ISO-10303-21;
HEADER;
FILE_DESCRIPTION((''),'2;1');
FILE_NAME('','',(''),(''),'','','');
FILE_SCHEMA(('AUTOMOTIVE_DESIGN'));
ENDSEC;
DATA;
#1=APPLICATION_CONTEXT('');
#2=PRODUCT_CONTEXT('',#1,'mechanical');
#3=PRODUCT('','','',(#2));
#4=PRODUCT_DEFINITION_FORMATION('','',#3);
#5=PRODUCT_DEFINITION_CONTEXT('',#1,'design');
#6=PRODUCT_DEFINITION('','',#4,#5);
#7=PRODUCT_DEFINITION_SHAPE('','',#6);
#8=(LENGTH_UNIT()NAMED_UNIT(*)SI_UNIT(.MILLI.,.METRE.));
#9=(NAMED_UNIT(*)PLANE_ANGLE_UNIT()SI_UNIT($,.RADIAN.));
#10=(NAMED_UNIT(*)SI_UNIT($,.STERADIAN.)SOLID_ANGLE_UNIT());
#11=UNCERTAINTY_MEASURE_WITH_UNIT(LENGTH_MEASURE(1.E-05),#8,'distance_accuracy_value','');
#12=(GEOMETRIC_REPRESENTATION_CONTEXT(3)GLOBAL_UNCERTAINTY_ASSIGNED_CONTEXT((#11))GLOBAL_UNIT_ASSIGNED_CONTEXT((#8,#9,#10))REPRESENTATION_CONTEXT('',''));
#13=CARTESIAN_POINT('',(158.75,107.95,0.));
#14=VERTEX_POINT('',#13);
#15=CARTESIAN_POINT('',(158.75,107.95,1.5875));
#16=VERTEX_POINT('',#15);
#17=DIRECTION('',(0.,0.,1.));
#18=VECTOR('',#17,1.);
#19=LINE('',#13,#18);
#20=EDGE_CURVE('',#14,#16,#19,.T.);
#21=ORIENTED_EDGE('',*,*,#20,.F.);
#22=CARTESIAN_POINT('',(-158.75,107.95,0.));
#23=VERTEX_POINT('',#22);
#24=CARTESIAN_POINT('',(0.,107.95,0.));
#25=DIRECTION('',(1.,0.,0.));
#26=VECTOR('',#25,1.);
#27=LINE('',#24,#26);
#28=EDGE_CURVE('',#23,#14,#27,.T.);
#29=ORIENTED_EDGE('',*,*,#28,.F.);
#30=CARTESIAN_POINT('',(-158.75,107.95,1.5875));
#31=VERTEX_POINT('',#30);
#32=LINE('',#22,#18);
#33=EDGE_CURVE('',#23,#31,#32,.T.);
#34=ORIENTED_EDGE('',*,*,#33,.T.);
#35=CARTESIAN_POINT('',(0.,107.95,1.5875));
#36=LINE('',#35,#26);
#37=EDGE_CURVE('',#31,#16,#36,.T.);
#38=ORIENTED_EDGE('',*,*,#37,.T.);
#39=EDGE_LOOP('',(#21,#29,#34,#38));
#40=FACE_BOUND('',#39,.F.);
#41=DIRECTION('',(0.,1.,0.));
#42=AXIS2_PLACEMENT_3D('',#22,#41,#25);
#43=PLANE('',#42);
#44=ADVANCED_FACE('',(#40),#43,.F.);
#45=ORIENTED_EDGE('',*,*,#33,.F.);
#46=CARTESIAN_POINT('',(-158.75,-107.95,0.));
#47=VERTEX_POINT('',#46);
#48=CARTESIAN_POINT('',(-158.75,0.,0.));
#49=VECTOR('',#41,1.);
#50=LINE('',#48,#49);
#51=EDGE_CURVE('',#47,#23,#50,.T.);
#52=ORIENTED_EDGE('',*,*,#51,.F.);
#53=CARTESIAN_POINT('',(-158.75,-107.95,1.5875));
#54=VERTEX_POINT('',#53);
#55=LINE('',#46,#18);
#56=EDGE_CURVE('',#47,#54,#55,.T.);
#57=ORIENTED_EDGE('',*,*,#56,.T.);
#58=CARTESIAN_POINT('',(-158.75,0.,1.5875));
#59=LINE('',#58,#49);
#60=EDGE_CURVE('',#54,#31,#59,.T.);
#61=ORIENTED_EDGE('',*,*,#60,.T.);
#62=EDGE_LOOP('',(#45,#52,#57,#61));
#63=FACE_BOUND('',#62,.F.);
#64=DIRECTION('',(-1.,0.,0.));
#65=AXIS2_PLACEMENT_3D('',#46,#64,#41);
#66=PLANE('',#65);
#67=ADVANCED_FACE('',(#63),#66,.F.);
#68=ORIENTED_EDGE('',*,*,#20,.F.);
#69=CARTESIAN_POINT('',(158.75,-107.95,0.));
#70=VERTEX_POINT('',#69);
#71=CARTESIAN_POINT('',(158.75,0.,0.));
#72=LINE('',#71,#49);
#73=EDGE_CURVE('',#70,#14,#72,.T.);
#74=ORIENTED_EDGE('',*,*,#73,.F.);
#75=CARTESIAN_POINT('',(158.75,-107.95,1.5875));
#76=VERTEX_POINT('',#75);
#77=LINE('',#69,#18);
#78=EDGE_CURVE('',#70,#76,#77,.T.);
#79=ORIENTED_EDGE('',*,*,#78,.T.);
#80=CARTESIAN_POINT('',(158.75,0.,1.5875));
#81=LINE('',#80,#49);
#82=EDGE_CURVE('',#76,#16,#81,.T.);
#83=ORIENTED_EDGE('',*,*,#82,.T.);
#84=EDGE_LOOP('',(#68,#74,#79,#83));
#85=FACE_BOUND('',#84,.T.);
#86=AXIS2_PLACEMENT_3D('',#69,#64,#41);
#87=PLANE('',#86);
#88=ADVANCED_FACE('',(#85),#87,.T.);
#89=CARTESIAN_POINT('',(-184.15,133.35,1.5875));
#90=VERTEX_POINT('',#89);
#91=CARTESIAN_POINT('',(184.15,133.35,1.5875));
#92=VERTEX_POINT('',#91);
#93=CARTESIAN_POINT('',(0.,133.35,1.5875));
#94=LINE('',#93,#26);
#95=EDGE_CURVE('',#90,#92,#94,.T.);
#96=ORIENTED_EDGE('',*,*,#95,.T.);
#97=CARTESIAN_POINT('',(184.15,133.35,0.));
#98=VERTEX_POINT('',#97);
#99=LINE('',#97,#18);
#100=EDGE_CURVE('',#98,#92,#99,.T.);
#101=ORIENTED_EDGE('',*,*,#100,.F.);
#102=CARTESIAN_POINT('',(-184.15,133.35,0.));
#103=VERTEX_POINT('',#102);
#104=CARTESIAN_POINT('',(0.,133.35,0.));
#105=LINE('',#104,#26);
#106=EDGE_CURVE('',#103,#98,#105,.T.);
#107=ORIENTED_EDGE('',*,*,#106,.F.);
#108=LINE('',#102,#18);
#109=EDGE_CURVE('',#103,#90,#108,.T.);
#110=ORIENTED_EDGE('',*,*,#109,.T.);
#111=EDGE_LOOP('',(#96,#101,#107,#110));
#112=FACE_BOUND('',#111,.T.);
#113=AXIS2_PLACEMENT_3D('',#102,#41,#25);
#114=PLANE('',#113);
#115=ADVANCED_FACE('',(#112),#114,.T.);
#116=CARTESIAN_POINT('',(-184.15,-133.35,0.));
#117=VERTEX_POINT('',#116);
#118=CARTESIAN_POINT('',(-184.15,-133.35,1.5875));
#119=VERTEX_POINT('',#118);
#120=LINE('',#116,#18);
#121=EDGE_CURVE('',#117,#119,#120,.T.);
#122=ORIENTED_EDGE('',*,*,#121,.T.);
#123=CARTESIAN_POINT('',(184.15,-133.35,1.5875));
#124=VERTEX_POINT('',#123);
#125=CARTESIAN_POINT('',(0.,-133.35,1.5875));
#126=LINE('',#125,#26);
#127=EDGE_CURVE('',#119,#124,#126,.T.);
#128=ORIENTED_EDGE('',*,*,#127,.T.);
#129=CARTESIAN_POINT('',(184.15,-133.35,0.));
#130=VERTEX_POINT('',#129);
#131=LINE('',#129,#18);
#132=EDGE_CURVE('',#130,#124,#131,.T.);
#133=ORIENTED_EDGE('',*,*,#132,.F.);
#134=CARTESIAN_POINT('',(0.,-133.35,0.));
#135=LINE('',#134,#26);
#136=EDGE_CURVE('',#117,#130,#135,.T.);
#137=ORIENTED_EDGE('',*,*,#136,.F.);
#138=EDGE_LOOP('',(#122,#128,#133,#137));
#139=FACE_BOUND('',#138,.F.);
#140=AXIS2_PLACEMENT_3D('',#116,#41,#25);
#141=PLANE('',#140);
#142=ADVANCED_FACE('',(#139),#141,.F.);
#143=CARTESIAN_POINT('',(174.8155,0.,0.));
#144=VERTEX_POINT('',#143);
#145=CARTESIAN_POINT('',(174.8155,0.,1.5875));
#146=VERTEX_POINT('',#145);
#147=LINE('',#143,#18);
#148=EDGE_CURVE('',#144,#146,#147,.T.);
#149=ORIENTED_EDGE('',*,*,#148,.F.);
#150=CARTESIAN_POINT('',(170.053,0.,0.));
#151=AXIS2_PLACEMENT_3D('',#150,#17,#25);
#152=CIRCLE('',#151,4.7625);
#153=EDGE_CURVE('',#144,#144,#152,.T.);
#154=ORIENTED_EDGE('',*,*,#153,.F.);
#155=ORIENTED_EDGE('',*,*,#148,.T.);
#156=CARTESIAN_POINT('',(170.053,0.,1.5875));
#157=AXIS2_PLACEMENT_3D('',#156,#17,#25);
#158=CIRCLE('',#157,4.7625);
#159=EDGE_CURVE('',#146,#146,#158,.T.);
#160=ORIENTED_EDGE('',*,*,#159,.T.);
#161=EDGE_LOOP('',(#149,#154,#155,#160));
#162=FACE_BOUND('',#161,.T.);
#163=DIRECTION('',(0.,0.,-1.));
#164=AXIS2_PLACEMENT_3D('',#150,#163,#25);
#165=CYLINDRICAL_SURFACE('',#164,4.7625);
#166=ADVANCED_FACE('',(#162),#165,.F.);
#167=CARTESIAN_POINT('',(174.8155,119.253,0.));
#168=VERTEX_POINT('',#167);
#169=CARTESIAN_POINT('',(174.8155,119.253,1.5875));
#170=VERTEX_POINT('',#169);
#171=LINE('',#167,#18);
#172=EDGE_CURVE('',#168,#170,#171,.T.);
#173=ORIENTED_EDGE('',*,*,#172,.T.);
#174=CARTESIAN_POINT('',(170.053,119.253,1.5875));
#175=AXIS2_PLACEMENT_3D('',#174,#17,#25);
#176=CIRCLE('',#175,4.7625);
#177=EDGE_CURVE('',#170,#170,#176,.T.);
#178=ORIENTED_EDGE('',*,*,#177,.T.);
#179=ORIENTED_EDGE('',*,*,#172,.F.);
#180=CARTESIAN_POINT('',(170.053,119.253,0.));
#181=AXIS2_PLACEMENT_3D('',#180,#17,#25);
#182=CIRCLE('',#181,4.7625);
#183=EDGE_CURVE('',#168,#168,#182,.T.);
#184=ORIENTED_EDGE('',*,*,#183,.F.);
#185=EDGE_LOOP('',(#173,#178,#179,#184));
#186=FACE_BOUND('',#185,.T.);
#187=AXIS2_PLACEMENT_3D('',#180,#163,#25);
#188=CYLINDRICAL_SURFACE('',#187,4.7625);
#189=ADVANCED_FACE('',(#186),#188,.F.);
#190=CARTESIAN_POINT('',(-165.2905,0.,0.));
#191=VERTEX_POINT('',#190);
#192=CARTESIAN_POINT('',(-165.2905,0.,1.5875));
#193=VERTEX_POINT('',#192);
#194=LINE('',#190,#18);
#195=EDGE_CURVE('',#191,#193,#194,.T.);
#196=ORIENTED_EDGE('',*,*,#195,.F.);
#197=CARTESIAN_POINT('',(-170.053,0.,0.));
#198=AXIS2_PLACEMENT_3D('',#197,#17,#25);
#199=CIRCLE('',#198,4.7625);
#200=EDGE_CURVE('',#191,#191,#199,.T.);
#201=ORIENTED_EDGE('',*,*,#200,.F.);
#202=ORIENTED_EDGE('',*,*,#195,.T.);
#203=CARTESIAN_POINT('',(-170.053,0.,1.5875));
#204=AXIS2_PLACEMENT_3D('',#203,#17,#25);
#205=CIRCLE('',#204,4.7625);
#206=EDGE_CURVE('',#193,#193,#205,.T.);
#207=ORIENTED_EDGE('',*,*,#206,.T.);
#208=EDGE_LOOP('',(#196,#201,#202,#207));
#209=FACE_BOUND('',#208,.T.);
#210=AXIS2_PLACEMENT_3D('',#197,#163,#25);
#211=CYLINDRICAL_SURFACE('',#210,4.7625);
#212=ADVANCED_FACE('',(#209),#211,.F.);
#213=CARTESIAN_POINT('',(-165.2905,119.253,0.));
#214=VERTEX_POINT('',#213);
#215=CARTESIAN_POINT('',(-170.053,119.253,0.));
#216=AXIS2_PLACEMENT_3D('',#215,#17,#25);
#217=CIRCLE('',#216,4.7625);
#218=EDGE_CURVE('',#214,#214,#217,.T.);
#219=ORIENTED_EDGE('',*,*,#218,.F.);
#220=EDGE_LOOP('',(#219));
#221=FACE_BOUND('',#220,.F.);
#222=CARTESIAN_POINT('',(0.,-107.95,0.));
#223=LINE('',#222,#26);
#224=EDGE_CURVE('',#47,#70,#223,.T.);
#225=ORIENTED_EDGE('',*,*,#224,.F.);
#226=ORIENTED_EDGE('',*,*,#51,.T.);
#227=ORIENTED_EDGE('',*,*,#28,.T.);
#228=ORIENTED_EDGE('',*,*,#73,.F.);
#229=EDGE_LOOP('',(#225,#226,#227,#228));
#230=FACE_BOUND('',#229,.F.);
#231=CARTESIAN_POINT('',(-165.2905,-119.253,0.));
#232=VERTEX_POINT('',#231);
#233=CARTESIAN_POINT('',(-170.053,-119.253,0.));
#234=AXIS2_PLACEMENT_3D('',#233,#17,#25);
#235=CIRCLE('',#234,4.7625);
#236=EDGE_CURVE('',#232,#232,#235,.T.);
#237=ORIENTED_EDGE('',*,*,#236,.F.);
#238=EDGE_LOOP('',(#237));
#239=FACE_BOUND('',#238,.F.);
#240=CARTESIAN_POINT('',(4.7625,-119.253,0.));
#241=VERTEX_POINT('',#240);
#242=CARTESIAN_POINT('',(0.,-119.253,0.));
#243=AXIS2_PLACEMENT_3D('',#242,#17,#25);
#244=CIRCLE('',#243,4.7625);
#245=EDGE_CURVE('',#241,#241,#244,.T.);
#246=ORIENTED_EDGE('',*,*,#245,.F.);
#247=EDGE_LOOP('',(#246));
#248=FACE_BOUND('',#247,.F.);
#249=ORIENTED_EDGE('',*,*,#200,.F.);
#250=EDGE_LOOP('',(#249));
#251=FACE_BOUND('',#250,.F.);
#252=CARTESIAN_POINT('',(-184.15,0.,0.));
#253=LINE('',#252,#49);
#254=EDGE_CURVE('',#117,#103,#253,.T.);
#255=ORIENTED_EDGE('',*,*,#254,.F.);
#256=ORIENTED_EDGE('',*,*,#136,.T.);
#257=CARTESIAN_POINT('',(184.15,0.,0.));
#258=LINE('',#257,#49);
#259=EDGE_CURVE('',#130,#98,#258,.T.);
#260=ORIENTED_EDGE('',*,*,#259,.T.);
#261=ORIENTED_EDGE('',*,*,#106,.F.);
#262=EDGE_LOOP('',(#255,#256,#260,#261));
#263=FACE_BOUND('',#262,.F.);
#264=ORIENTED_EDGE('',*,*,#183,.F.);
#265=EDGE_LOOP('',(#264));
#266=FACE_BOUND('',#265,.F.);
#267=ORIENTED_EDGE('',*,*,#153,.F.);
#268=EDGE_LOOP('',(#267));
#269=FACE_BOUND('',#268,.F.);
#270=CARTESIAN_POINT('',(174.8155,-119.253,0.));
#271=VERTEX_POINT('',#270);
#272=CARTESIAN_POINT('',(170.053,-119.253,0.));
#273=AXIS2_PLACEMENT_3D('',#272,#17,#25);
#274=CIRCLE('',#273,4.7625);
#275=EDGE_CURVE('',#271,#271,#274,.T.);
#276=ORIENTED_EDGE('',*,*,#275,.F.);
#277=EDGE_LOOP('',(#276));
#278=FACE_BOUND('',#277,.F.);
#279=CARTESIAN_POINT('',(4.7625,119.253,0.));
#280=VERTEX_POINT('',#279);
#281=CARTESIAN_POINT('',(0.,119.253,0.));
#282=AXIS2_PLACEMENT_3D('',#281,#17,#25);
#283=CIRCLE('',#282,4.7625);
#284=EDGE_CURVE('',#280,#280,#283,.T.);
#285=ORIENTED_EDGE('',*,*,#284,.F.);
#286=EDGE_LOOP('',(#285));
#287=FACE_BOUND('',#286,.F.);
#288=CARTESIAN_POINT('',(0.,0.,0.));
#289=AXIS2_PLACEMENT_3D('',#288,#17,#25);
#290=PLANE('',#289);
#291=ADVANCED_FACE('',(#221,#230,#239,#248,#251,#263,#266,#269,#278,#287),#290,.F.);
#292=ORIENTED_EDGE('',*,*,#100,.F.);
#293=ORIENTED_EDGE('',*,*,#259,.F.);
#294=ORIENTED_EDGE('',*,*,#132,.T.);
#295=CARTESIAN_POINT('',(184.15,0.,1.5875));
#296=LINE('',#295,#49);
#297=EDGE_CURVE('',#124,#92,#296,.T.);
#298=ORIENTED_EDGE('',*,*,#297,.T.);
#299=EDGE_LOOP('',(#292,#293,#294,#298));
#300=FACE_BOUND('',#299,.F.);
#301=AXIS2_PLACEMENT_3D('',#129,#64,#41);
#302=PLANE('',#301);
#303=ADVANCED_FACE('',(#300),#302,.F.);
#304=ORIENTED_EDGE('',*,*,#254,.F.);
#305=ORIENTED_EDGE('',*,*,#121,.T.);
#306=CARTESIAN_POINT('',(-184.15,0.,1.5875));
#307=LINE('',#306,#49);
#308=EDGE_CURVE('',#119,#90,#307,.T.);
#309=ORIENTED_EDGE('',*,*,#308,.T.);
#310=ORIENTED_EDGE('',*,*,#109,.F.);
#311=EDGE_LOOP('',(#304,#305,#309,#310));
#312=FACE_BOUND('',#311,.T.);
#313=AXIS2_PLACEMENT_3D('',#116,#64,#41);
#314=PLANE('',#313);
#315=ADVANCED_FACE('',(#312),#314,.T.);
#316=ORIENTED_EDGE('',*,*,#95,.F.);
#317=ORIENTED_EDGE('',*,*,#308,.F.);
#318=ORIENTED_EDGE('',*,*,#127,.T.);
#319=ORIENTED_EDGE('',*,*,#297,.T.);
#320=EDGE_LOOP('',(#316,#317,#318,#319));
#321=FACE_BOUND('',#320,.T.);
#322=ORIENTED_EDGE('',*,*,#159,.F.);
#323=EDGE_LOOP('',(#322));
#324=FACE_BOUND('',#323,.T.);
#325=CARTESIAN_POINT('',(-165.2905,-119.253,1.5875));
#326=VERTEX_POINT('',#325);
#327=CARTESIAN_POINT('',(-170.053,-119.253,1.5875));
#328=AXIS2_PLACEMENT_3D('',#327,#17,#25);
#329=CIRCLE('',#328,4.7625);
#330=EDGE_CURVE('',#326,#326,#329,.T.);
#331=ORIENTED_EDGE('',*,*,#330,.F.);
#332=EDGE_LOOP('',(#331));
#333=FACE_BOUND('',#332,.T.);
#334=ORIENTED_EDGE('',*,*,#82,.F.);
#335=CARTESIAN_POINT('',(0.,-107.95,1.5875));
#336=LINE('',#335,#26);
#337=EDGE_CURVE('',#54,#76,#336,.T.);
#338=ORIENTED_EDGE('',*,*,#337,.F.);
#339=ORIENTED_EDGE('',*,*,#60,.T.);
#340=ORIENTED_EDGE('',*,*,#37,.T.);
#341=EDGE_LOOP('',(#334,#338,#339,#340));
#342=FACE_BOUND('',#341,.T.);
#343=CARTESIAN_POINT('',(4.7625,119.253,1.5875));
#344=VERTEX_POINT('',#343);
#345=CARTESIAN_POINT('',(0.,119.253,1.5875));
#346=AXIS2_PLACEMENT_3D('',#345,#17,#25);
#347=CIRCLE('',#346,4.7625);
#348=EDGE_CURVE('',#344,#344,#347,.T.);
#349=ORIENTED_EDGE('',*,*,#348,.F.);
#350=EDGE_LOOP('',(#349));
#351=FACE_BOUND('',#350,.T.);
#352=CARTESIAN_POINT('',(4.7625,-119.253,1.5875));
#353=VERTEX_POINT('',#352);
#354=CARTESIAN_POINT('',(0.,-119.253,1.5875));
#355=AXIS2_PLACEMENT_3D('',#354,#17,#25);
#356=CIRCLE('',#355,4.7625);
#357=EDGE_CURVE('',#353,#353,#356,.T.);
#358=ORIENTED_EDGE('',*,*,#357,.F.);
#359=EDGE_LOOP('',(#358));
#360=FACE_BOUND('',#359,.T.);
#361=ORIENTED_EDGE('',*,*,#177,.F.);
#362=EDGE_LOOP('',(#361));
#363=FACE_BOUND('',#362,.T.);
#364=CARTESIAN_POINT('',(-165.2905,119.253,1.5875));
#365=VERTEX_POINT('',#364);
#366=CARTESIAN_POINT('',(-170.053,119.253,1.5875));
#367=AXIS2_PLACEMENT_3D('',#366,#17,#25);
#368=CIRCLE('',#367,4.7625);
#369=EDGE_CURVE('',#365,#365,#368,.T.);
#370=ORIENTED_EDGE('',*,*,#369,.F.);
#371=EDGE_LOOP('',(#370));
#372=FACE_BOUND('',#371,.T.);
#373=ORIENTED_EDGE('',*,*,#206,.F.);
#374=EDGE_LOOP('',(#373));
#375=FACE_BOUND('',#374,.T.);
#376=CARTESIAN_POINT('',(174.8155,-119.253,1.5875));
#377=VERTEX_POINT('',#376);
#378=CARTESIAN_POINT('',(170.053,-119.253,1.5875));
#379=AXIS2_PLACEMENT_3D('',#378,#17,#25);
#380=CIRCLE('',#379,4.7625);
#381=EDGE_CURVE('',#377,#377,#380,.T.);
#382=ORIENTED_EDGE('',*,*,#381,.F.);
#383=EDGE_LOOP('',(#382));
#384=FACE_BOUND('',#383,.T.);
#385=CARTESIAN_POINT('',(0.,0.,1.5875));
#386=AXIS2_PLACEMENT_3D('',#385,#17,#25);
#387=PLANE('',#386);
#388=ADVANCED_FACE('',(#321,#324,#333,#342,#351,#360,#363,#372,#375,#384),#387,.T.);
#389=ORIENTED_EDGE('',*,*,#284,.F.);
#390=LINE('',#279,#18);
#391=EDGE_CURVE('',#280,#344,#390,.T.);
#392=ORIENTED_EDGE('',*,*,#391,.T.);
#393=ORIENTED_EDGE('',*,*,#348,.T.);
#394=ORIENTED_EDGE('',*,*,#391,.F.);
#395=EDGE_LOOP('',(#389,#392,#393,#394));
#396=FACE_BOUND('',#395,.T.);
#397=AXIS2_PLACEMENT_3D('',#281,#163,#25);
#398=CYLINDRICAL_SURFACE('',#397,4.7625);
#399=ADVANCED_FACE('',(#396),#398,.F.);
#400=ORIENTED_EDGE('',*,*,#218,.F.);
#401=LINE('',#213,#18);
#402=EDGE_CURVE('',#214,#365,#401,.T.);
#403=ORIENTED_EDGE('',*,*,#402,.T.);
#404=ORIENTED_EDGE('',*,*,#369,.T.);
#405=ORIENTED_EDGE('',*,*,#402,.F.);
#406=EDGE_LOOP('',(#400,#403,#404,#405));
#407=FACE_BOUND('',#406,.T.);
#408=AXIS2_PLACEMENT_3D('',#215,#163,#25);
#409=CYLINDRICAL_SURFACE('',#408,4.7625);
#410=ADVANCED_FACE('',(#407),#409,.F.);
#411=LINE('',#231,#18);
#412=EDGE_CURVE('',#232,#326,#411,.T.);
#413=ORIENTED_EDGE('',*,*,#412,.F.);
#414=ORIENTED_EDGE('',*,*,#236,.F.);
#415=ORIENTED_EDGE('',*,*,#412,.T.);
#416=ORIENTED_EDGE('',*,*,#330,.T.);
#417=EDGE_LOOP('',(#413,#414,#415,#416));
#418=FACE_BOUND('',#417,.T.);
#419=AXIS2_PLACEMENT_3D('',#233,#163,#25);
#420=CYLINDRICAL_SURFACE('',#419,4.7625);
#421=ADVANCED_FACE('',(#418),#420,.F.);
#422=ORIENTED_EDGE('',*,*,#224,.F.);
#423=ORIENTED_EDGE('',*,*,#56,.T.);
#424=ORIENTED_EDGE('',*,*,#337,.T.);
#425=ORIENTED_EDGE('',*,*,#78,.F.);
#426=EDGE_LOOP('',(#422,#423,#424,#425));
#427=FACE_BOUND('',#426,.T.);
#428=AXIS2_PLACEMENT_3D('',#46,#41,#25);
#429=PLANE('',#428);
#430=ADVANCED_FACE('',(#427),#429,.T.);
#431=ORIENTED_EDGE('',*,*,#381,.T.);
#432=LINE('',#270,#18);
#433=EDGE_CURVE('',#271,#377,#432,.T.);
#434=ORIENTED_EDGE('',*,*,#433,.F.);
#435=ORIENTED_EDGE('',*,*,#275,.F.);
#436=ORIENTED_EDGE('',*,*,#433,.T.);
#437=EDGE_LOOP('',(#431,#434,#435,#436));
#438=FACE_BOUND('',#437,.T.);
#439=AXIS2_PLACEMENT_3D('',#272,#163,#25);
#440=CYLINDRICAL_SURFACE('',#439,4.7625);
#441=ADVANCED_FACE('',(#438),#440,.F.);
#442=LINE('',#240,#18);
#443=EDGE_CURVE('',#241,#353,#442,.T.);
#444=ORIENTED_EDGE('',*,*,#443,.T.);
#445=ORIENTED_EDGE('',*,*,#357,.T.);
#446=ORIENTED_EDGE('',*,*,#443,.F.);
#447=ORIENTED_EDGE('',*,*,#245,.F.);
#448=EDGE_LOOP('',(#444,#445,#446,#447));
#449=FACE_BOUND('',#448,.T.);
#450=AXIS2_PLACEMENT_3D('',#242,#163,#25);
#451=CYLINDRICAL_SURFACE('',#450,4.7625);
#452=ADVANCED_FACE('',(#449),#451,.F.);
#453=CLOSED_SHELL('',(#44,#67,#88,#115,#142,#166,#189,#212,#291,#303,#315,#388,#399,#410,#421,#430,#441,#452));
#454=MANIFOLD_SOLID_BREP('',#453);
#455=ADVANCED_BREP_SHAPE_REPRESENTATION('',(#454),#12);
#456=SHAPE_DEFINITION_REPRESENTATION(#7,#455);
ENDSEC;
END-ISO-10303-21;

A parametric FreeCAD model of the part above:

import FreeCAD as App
import Part
import Sketcher

V = App.Vector
Q = App.Units.Quantity


def add_polygon(sketch, points):
    """Adds a closed chain of lines whose ends are joined by coincident constraints."""
    first, n = sketch.GeometryCount, len(points)
    for a, b in zip(points, points[1:] + points[:1]):
        sketch.addGeometry(Part.LineSegment(App.Vector(*a, 0), App.Vector(*b, 0)), False)
    for i in range(n):
        sketch.addConstraint(Sketcher.Constraint("Coincident", first + i, 2, first + (i + 1) % n, 1))

doc = App.newDocument("Part")
body = doc.addObject("PartDesign::Body", "Body")

sketch1 = doc.addObject("Sketcher::SketchObject", "Sketch")
body.addObject(sketch1)
sketch1.AttachmentSupport = (doc.XY_Plane, [""])
sketch1.MapMode = "FlatFace"
add_polygon(sketch1, [(-184.2, 133.3), (-184.2, -133.3), (184.2, -133.3), (184.2, 133.3)])
sketch1.addGeometry(Part.Circle(V(-170.1, -119.3, 0), V(0, 0, 1), 4.8), False)
sketch1.addGeometry(Part.Circle(V(0, -119.3, 0), V(0, 0, 1), 4.8), False)
sketch1.addGeometry(Part.Circle(V(170.1, -119.3, 0), V(0, 0, 1), 4.8), False)
sketch1.addGeometry(Part.Circle(V(-170.1, 0, 0), V(0, 0, 1), 4.8), False)
sketch1.addGeometry(Part.Circle(V(-170.1, 119.3, 0), V(0, 0, 1), 4.8), False)
add_polygon(sketch1, [(158.8, -108), (-158.8, -108), (-158.8, 108), (158.8, 108)])
sketch1.addGeometry(Part.Circle(V(170.1, 0, 0), V(0, 0, 1), 4.8), False)
sketch1.addGeometry(Part.Circle(V(0, 119.3, 0), V(0, 0, 1), 4.8), False)
sketch1.addGeometry(Part.Circle(V(170.1, 119.3, 0), V(0, 0, 1), 4.8), False)
sketch1.addConstraint([
    Sketcher.Constraint("Vertical", 0),
    Sketcher.Constraint("Horizontal", 1),
    Sketcher.Constraint("Vertical", 2),
    Sketcher.Constraint("Horizontal", 3),
    Sketcher.Constraint("Horizontal", 9),
    Sketcher.Constraint("Vertical", 10),
    Sketcher.Constraint("Horizontal", 11),
    Sketcher.Constraint("Vertical", 12),
    Sketcher.Constraint("Equal", 4, 5),
    Sketcher.Constraint("Equal", 5, 6),
    Sketcher.Constraint("Equal", 6, 7),
    Sketcher.Constraint("Equal", 7, 8),
    Sketcher.Constraint("Equal", 8, 13),
    Sketcher.Constraint("Equal", 13, 14),
    Sketcher.Constraint("Equal", 14, 15),
    Sketcher.Constraint("Symmetric", 6, 3, 8, 3, -1, 1),
    Sketcher.Constraint("Symmetric", 7, 3, 13, 3, -1, 1),
    Sketcher.Constraint("Symmetric", 5, 3, 14, 3, -1, 1),
    Sketcher.Constraint("Symmetric", 4, 3, 15, 3, -1, 1),
    Sketcher.Constraint("Symmetric", 0, 2, 2, 2, -1, 1),
    Sketcher.Constraint("Symmetric", 9, 2, 11, 2, -1, 1),
    Sketcher.Constraint("Symmetric", 4, 3, 6, 3, -2),
    Sketcher.Constraint("PointOnObject", 5, 3, -2),
    Sketcher.Constraint("PointOnObject", 7, 3, -1),
    Sketcher.Constraint("Horizontal", 4, 3, 5, 3),
    Sketcher.Constraint("Vertical", 4, 3, 7, 3),
    Sketcher.Constraint("Diameter", 4, Q("0.375 in")),
    Sketcher.Constraint("DistanceX", 1, 1, 1, 2, Q("14.5 in")),
    Sketcher.Constraint("DistanceX", 9, 2, 9, 1, Q("12.5 in")),
    Sketcher.Constraint("DistanceY", 0, 2, 0, 1, Q("10.5 in")),
    Sketcher.Constraint("DistanceY", 10, 1, 10, 2, Q("8.5 in")),
    Sketcher.Constraint("DistanceX", 4, 3, 6, 3, Q("13.39 in")),
    Sketcher.Constraint("DistanceY", 4, 3, 8, 3, Q("9.39 in")),
])
pad1 = doc.addObject("PartDesign::Pad", "Pad")
body.addObject(pad1)
pad1.Profile = sketch1
pad1.Length = Q("0.0625 in")

doc.recompute()
